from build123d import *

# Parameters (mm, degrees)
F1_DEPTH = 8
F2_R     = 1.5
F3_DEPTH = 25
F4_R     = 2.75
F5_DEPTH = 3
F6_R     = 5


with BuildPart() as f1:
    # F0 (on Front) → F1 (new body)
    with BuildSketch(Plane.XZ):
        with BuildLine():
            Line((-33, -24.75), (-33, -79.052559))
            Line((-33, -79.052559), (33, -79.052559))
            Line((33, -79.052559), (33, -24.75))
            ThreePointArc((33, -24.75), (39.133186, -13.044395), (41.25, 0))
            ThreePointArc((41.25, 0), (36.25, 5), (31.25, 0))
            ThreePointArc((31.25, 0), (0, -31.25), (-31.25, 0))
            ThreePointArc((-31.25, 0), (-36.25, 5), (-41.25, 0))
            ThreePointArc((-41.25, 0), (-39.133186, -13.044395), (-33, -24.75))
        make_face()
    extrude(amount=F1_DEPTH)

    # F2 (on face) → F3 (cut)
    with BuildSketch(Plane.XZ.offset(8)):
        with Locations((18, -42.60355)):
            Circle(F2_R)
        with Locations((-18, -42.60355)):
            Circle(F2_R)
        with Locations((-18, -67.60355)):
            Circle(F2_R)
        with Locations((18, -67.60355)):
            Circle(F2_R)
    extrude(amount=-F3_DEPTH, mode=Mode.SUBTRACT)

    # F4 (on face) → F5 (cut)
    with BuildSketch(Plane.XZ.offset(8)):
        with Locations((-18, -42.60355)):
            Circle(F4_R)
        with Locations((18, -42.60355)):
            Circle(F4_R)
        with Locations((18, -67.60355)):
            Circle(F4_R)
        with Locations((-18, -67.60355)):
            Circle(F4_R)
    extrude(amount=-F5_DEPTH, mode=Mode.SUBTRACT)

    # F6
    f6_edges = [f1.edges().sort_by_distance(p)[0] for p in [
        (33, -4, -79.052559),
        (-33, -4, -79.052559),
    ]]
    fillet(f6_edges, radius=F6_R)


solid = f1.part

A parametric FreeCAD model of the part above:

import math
import FreeCAD as App
import Part
import Sketcher

V = App.Vector
Q = App.Units.Quantity


def edges_at(feature, points):
    """Names of the edges that pass closest to the given points."""
    edges = feature.Shape.Edges
    near = lambda p: min(range(len(edges)), key=lambda i: edges[i].distToShape(Part.Vertex(*p))[0])
    return sorted({f"Edge{near(p) + 1}" for p in points})

doc = App.newDocument("Part")
body = doc.addObject("PartDesign::Body", "Body")

# Sketch on XZ plane
sketch1 = body.newObject("Sketcher::SketchObject", "Sketch")
sketch1.AttachmentSupport = (doc.getObject("XZ_Plane"), [""])
sketch1.MapMode = "FlatFace"
sketch1.addGeometry([
    Part.LineSegment(V(-33, -25, 0), V(-33, -79, 0)),  # 0
    Part.LineSegment(V(-33, -79, 0), V(33, -79, 0)),  # 1
    Part.LineSegment(V(33, -79, 0), V(33, -25, 0)),  # 2
    Part.ArcOfCircle(Part.Circle(V(0, 0, 0), V(0, 0, 1), 41), math.radians(-37), math.radians(0)),  # 3
    Part.ArcOfCircle(Part.Circle(V(36, 0, 0), V(0, 0, 1), 5), math.radians(0), math.radians(180)),  # 4
    Part.ArcOfCircle(Part.Circle(V(0, 0, 0), V(0, 0, 1), 31), math.radians(180), math.radians(360)),  # 5
    Part.ArcOfCircle(Part.Circle(V(-36, 0, 0), V(0, 0, 1), 5), math.radians(0), math.radians(180)),  # 6
    Part.ArcOfCircle(Part.Circle(V(0, 0, 0), V(0, 0, 1), 41), math.radians(-180), math.radians(-143)),  # 7
], False)
sketch1.addConstraint([
    Sketcher.Constraint("Coincident", 0, 2, 1, 1),
    Sketcher.Constraint("Coincident", 1, 2, 2, 1),
    Sketcher.Constraint("Coincident", 2, 2, 3, 1),
    Sketcher.Constraint("Tangent", 3, 2, 4, 1),
    Sketcher.Constraint("Tangent", 4, 2, 5, 2),
    Sketcher.Constraint("Tangent", 5, 1, 6, 1),
    Sketcher.Constraint("Tangent", 6, 2, 7, 1),
    Sketcher.Constraint("Coincident", 7, 2, 0, 1),
    Sketcher.Constraint("Vertical", 0),
    Sketcher.Constraint("Horizontal", 1),
    Sketcher.Constraint("Vertical", 2),
    Sketcher.Constraint("Coincident", 3, 3, -1, 1),
    Sketcher.Constraint("Coincident", 5, 3, -1, 1),
    Sketcher.Constraint("Coincident", 7, 3, -1, 1),
    Sketcher.Constraint("Equal", 4, 6),
    Sketcher.Constraint("PointOnObject", 4, 3, -1),
    Sketcher.Constraint("PointOnObject", 6, 3, -1),
    Sketcher.Constraint("Horizontal", 2, 2, 7, 2),
    Sketcher.Constraint("Radius", 4, Q("5 mm")),
    Sketcher.Constraint("DistanceX", 1, 1, 1, 2, Q("66 mm")),
    Sketcher.Constraint("Radius", 5, Q("31.25 mm")),
    Sketcher.Constraint("DistanceY", 0, 2, 0, 1, Q("54.302559 mm")),
])
pad1 = body.newObject("PartDesign::Pad", "Pad")
pad1.Profile = sketch1
pad1.Length = 8

# Sketch on XZ plane
sketch2 = body.newObject("Sketcher::SketchObject", "Sketch001")
sketch2.AttachmentSupport = (doc.getObject("XZ_Plane"), [""])
sketch2.MapMode = "FlatFace"
sketch2.AttachmentOffset = App.Placement(V(0, 0, 8), App.Rotation())
sketch2.addGeometry([
    Part.Circle(V(18, -42.6, 0), V(0, 0, 1), 1.5),
    Part.Circle(V(-18, -42.6, 0), V(0, 0, 1), 1.5),
    Part.Circle(V(-18, -67.6, 0), V(0, 0, 1), 1.5),
    Part.Circle(V(18, -67.6, 0), V(0, 0, 1), 1.5),
], False)
sketch2.addConstraint([
    Sketcher.Constraint("Equal", 0, 1),
    Sketcher.Constraint("Equal", 1, 2),
    Sketcher.Constraint("Equal", 2, 3),
    Sketcher.Constraint("Symmetric", 0, 3, 1, 3, -2),
    Sketcher.Constraint("Symmetric", 2, 3, 3, 3, -2),
    Sketcher.Constraint("Vertical", 1, 3, 2, 3),
    Sketcher.Constraint("Diameter", 0, Q("3 mm")),
    Sketcher.Constraint("DistanceX", -1, 1, 0, 3, Q("18 mm")),
    Sketcher.Constraint("DistanceY", 2, 3, 1, 3, Q("25 mm")),
    Sketcher.Constraint("DistanceY", 0, 3, -1, 1, Q("42.60355 mm")),
])
pocket1 = body.newObject("PartDesign::Pocket", "Pocket")
pocket1.Profile = sketch2
pocket1.Length = 25

# Sketch on XZ plane
sketch3 = body.newObject("Sketcher::SketchObject", "Sketch002")
sketch3.AttachmentSupport = (doc.getObject("XZ_Plane"), [""])
sketch3.MapMode = "FlatFace"
sketch3.AttachmentOffset = App.Placement(V(0, 0, 8), App.Rotation())
sketch3.addGeometry([
    Part.Circle(V(-18, -42.6, 0), V(0, 0, 1), 2.8),
    Part.Circle(V(18, -42.6, 0), V(0, 0, 1), 2.8),
    Part.Circle(V(18, -67.6, 0), V(0, 0, 1), 2.8),
    Part.Circle(V(-18, -67.6, 0), V(0, 0, 1), 2.8),
], False)
sketch3.addConstraint([
    Sketcher.Constraint("Equal", 0, 1),
    Sketcher.Constraint("Equal", 1, 2),
    Sketcher.Constraint("Equal", 2, 3),
    Sketcher.Constraint("Symmetric", 0, 3, 1, 3, -2),
    Sketcher.Constraint("Symmetric", 2, 3, 3, 3, -2),
    Sketcher.Constraint("Vertical", 1, 3, 2, 3),
    Sketcher.Constraint("Diameter", 0, Q("5.5 mm")),
    Sketcher.Constraint("DistanceX", 0, 3, -1, 1, Q("18 mm")),
    Sketcher.Constraint("DistanceY", 2, 3, 1, 3, Q("25 mm")),
    Sketcher.Constraint("DistanceY", 0, 3, -1, 1, Q("42.60355 mm")),
])
pocket2 = body.newObject("PartDesign::Pocket", "Pocket001")
pocket2.Profile = sketch3
pocket2.Length = 3
doc.recompute()

fillet = body.newObject("PartDesign::Fillet", "Fillet")
fillet.Base = (pocket2, edges_at(pocket2, [(33, -4, -79.053), (-33, -4, -79.053)]))
fillet.Radius = 5

doc.recompute()
